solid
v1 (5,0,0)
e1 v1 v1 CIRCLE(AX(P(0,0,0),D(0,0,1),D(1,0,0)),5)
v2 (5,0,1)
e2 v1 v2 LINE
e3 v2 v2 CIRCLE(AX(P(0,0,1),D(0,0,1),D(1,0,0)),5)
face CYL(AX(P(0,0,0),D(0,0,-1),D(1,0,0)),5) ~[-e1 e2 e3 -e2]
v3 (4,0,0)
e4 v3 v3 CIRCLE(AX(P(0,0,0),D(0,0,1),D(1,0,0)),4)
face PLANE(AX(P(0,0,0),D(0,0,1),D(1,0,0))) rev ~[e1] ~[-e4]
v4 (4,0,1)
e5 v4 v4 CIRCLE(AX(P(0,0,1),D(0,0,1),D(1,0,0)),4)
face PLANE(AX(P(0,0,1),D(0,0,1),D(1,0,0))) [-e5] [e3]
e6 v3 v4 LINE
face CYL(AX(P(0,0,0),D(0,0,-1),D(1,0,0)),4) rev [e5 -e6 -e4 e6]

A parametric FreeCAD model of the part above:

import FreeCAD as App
import Part
import Sketcher

V = App.Vector
Q = App.Units.Quantity

doc = App.newDocument("Part")
body = doc.addObject("PartDesign::Body", "Body")

sketch1 = doc.addObject("Sketcher::SketchObject", "Sketch")
body.addObject(sketch1)
sketch1.AttachmentSupport = (doc.XY_Plane, [""])
sketch1.MapMode = "FlatFace"
sketch1.addGeometry(Part.Circle(V(0, 0, 0), V(0, 0, 1), 5), False)
sketch1.addGeometry(Part.Circle(V(0, 0, 0), V(0, 0, 1), 4), False)
sketch1.addConstraint(Sketcher.Constraint("Coincident", 0, 3, -1, 1))
sketch1.addConstraint(Sketcher.Constraint("Coincident", 1, 3, -1, 1))
sketch1.addConstraint(Sketcher.Constraint("Diameter", 0, Q("10 mm")))
sketch1.addConstraint(Sketcher.Constraint("Diameter", 1, Q("8 mm")))
pad1 = doc.addObject("PartDesign::Pad", "Pad")
body.addObject(pad1)
pad1.Profile = sketch1
pad1.Length = 1

doc.recompute()
